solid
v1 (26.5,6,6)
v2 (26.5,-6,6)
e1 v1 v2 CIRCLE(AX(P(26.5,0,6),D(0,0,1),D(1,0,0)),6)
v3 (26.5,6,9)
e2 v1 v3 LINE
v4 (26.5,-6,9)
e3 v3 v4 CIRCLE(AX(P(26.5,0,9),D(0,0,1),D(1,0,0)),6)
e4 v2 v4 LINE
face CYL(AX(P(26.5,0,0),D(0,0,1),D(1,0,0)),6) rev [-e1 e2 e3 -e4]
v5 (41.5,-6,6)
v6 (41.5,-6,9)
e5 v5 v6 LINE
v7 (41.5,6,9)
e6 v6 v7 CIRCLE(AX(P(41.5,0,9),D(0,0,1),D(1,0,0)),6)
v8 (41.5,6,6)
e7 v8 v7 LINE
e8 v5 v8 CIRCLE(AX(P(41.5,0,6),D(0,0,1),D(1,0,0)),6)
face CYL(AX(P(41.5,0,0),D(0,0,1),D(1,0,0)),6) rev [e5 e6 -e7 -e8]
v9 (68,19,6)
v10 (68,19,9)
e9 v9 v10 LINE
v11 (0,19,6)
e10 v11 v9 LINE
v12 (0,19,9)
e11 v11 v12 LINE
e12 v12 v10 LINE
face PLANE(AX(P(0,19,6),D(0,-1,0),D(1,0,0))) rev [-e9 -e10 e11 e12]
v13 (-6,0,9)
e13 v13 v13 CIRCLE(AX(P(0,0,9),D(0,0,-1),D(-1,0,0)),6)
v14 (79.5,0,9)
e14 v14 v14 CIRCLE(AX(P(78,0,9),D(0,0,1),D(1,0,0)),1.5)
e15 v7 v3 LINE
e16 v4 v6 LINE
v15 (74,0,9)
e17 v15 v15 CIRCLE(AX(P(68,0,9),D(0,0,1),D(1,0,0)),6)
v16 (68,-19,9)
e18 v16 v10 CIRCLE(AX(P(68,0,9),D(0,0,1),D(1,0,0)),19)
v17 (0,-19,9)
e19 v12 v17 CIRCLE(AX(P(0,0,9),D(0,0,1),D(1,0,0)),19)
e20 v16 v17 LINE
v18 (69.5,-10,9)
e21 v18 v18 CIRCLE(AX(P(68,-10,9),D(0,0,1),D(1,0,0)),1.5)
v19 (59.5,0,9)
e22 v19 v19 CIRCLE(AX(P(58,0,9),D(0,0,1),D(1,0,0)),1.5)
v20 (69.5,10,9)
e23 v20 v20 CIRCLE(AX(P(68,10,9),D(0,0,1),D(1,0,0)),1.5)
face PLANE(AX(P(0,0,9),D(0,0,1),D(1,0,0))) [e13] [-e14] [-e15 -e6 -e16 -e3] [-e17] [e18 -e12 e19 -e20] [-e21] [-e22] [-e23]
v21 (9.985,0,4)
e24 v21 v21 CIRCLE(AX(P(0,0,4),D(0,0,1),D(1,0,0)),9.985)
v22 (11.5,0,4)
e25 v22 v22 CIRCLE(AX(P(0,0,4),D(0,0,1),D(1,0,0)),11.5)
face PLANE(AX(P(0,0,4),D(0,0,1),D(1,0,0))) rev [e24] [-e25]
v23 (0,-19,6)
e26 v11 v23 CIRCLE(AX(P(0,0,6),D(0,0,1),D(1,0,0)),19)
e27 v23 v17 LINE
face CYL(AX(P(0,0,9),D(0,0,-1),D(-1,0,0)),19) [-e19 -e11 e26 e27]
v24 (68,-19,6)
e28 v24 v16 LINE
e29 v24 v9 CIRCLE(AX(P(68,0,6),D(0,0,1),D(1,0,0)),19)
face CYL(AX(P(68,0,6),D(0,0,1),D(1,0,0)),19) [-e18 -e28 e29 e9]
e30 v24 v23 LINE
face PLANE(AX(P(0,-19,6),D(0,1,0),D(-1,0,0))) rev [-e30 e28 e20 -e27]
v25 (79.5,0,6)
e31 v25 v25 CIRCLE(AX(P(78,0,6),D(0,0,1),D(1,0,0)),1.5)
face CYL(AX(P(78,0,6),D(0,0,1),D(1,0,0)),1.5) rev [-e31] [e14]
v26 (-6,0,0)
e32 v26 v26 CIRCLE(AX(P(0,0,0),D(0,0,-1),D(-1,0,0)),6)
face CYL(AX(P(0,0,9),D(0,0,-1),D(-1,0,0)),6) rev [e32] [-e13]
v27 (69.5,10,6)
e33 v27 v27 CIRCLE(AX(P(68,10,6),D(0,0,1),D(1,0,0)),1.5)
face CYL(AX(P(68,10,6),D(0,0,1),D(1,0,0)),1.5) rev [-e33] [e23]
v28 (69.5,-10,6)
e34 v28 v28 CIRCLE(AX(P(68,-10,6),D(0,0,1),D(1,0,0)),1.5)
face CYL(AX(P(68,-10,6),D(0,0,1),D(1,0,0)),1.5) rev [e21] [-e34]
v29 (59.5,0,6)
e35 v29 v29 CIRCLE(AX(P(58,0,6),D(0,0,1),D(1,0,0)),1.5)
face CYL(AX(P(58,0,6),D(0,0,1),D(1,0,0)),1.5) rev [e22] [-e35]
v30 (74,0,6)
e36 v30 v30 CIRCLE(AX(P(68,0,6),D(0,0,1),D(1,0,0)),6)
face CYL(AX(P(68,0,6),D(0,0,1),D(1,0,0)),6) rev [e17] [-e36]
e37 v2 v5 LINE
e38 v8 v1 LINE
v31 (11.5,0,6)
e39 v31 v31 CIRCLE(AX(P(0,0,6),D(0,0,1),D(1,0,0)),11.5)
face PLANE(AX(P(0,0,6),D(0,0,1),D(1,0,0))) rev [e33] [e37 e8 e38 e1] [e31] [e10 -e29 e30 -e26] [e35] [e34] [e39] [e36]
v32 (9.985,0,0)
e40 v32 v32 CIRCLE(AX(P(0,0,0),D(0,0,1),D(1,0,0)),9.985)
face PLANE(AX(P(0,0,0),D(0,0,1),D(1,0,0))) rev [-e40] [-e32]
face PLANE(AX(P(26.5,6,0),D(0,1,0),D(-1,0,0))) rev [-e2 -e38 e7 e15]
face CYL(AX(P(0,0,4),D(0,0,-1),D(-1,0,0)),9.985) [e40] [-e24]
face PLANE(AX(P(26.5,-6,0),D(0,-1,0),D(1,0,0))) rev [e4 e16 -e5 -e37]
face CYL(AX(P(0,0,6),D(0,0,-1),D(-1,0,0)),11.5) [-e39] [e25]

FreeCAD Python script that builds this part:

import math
import FreeCAD as App
import Part
import Sketcher

doc = App.newDocument("Part")
body = doc.addObject("PartDesign::Body", "Body")

# Sketch on XY plane
sketch1 = body.newObject("Sketcher::SketchObject", "Sketch")
sketch1.AttachmentSupport = (doc.getObject("XY_Plane"), [""])
sketch1.MapMode = "FlatFace"
sketch1.addGeometry(Part.Circle(App.Vector(0, 0, 0), App.Vector(0, 0, 1), 9.985), False)
sketch1.addConstraint(Sketcher.Constraint("Coincident", 0, 3, -1, 1))
sketch1.addConstraint(Sketcher.Constraint("Diameter", 0, 19.97))
pad1 = body.newObject("PartDesign::Pad", "Pad")
pad1.Profile = sketch1
pad1.Length = 4

# Sketch on XY plane
sketch2 = body.newObject("Sketcher::SketchObject", "Sketch001")
sketch2.AttachmentSupport = (doc.getObject("XY_Plane"), [""])
sketch2.MapMode = "FlatFace"
sketch2.AttachmentOffset = App.Placement(App.Vector(0, 0, 4), App.Rotation())
sketch2.addGeometry(Part.Circle(App.Vector(0, 0, 0), App.Vector(0, 0, 1), 11.5), False)
sketch2.addConstraint(Sketcher.Constraint("Coincident", 0, 3, -1, 1))
sketch2.addConstraint(Sketcher.Constraint("Diameter", 0, 23.0))
pad2 = body.newObject("PartDesign::Pad", "Pad001")
pad2.Profile = sketch2
pad2.Length = 2

# Sketch on XY plane
sketch3 = body.newObject("Sketcher::SketchObject", "Sketch002")
sketch3.AttachmentSupport = (doc.getObject("XY_Plane"), [""])
sketch3.MapMode = "FlatFace"
sketch3.AttachmentOffset = App.Placement(App.Vector(0, 0, 6), App.Rotation())
sketch3.addGeometry(Part.Circle(App.Vector(0, 0, 0), App.Vector(0, 0, 1), 19), False)
sketch3.addConstraint(Sketcher.Constraint("Coincident", 0, 3, -1, 1))
sketch3.addConstraint(Sketcher.Constraint("Diameter", 0, 38.0))
pad3 = body.newObject("PartDesign::Pad", "Pad002")
pad3.Profile = sketch3
pad3.Length = 3

# Sketch on XY plane
sketch4 = body.newObject("Sketcher::SketchObject", "Sketch003")
sketch4.AttachmentSupport = (doc.getObject("XY_Plane"), [""])
sketch4.MapMode = "FlatFace"
sketch4.addGeometry(Part.Circle(App.Vector(0, 0, 0), App.Vector(0, 0, 1), 6), False)
sketch4.addConstraint(Sketcher.Constraint("Coincident", 0, 3, -1, 1))
sketch4.addConstraint(Sketcher.Constraint("Diameter", 0, 12.0))
pocket1 = body.newObject("PartDesign::Pocket", "Pocket")
pocket1.Profile = sketch4
pocket1.Type = "ThroughAll"
pocket1.Reversed = True

# Sketch on XY plane
sketch5 = body.newObject("Sketcher::SketchObject", "Sketch004")
sketch5.AttachmentSupport = (doc.getObject("XY_Plane"), [""])
sketch5.MapMode = "FlatFace"
sketch5.AttachmentOffset = App.Placement(App.Vector(0, 0, 6), App.Rotation())
sketch5.addGeometry(Part.LineSegment(App.Vector(68, 19, 0), App.Vector(0, 19, 0)), False)
sketch5.addGeometry(Part.ArcOfCircle(Part.Circle(App.Vector(0, 0, 0), App.Vector(0, 0, 1), 19), math.radians(0), math.radians(90)), False)
sketch5.addGeometry(Part.ArcOfCircle(Part.Circle(App.Vector(0, 0, 0), App.Vector(0, 0, 1), 19), math.radians(-90), math.radians(0)), False)
sketch5.addGeometry(Part.LineSegment(App.Vector(0, -19, 0), App.Vector(68, -19, 0)), False)
sketch5.addGeometry(Part.ArcOfCircle(Part.Circle(App.Vector(68, 0, 0), App.Vector(0, 0, 1), 19), math.radians(-90), math.radians(0)), False)
sketch5.addGeometry(Part.ArcOfCircle(Part.Circle(App.Vector(68, 0, 0), App.Vector(0, 0, 1), 19), math.radians(0), math.radians(90)), False)
sketch5.addGeometry(Part.Circle(App.Vector(68, 10, 0), App.Vector(0, 0, 1), 1.5), False)
sketch5.addGeometry(Part.Circle(App.Vector(68, -10, 0), App.Vector(0, 0, 1), 1.5), False)
sketch5.addGeometry(Part.Circle(App.Vector(58, 0, 0), App.Vector(0, 0, 1), 1.5), False)
sketch5.addGeometry(Part.Circle(App.Vector(68, 0, 0), App.Vector(0, 0, 1), 6), False)
sketch5.addGeometry(Part.Circle(App.Vector(78, 0, 0), App.Vector(0, 0, 1), 1.5), False)
sketch5.addConstraint(Sketcher.Constraint("Tangent", 0, 2, 1, 2))
sketch5.addConstraint(Sketcher.Constraint("Tangent", 1, 1, 2, 2))
sketch5.addConstraint(Sketcher.Constraint("Tangent", 2, 1, 3, 1))
sketch5.addConstraint(Sketcher.Constraint("Tangent", 3, 2, 4, 1))
sketch5.addConstraint(Sketcher.Constraint("Tangent", 4, 2, 5, 1))
sketch5.addConstraint(Sketcher.Constraint("Tangent", 5, 2, 0, 1))
sketch5.addConstraint(Sketcher.Constraint("Horizontal", 0))
sketch5.addConstraint(Sketcher.Constraint("Horizontal", 3))
sketch5.addConstraint(Sketcher.Constraint("Coincident", 1, 3, -1, 1))
sketch5.addConstraint(Sketcher.Constraint("Coincident", 9, 3, 4, 3))
sketch5.addConstraint(Sketcher.Constraint("Equal", 1, 2))
sketch5.addConstraint(Sketcher.Constraint("Equal", 2, 4))
sketch5.addConstraint(Sketcher.Constraint("Equal", 6, 7))
sketch5.addConstraint(Sketcher.Constraint("Equal", 7, 8))
sketch5.addConstraint(Sketcher.Constraint("Equal", 8, 10))
sketch5.addConstraint(Sketcher.Constraint("Symmetric", 6, 3, 7, 3, -1))
sketch5.addConstraint(Sketcher.Constraint("PointOnObject", 8, 3, -1))
sketch5.addConstraint(Sketcher.Constraint("PointOnObject", 10, 3, -1))
sketch5.addConstraint(Sketcher.Constraint("PointOnObject", 1, 1, -1))
sketch5.addConstraint(Sketcher.Constraint("PointOnObject", 4, 2, -1))
sketch5.addConstraint(Sketcher.Constraint("Vertical", 5, 3, 6, 3))
sketch5.addConstraint(Sketcher.Constraint("Diameter", 6, 3.0))
sketch5.addConstraint(Sketcher.Constraint("Diameter", 9, 12.0))
sketch5.addConstraint(Sketcher.Constraint("Radius", 1, 19.0))
sketch5.addConstraint(Sketcher.Constraint("DistanceX", 0, 2, 0, 1, 68.0))
sketch5.addConstraint(Sketcher.Constraint("DistanceY", -1, 1, 6, 3, 10.0))
sketch5.addConstraint(Sketcher.Constraint("DistanceX", -1, 1, 8, 3, 58.0))
sketch5.addConstraint(Sketcher.Constraint("DistanceX", -1, 1, 10, 3, 78.0))
pad4 = body.newObject("PartDesign::Pad", "Pad003")
pad4.Profile = sketch5
pad4.Length = 3

# Sketch on XY plane
sketch6 = body.newObject("Sketcher::SketchObject", "Sketch005")
sketch6.AttachmentSupport = (doc.getObject("XY_Plane"), [""])
sketch6.MapMode = "FlatFace"
sketch6.AttachmentOffset = App.Placement(App.Vector(0, 0, 9), App.Rotation())
sketch6.addGeometry(Part.Circle(App.Vector(68, 0, 0), App.Vector(0, 0, 1), 6), False)
sketch6.addGeometry(Part.LineSegment(App.Vector(41.5, 6, 0), App.Vector(26.5, 6, 0)), False)
sketch6.addGeometry(Part.ArcOfCircle(Part.Circle(App.Vector(26.5, 0, 0), App.Vector(0, 0, 1), 6), math.radians(90), math.radians(270)), False)
sketch6.addGeometry(Part.LineSegment(App.Vector(26.5, -6, 0), App.Vector(41.5, -6, 0)), False)
sketch6.addGeometry(Part.ArcOfCircle(Part.Circle(App.Vector(41.5, 0, 0), App.Vector(0, 0, 1), 6), math.radians(-90), math.radians(90)), False)
sketch6.addConstraint(Sketcher.Constraint("Tangent", 1, 2, 2, 1))
sketch6.addConstraint(Sketcher.Constraint("Tangent", 2, 2, 3, 1))
sketch6.addConstraint(Sketcher.Constraint("Tangent", 3, 2, 4, 1))
sketch6.addConstraint(Sketcher.Constraint("Tangent", 4, 2, 1, 1))
sketch6.addConstraint(Sketcher.Constraint("Horizontal", 1))
sketch6.addConstraint(Sketcher.Constraint("Horizontal", 3))
sketch6.addConstraint(Sketcher.Constraint("Equal", 0, 2))
sketch6.addConstraint(Sketcher.Constraint("PointOnObject", 0, 3, -1))
sketch6.addConstraint(Sketcher.Constraint("PointOnObject", 2, 3, -1))
sketch6.addConstraint(Sketcher.Constraint("Diameter", 0, 12.0))
sketch6.addConstraint(Sketcher.Constraint("DistanceX", 1, 2, 1, 1, 15.0))
sketch6.addConstraint(Sketcher.Constraint("DistanceX", -1, 1, 0, 3, 68.0))
sketch6.addConstraint(Sketcher.Constraint("DistanceX", -1, 1, 2, 3, 26.5))
pocket2 = body.newObject("PartDesign::Pocket", "Pocket001")
pocket2.Profile = sketch6
pocket2.Type = "ThroughAll"

doc.recompute()
